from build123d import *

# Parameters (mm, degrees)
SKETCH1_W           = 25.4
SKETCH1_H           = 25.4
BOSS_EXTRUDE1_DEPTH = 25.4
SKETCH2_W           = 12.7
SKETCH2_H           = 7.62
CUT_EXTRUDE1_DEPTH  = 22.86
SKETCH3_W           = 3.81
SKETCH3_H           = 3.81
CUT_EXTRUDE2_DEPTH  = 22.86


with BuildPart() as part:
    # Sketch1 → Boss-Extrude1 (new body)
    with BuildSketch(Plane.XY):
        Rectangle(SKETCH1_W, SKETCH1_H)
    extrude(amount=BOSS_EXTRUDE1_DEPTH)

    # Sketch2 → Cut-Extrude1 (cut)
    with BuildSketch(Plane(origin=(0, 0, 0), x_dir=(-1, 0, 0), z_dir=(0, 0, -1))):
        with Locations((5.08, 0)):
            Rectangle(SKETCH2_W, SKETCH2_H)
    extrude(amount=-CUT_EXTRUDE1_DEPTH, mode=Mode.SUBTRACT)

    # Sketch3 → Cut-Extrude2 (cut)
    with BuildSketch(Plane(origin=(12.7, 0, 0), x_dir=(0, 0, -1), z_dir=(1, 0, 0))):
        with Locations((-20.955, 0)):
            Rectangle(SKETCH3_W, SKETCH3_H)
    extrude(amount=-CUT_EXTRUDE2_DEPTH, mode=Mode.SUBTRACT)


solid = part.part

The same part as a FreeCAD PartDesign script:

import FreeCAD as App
import Part
import Sketcher
Q = App.Units.Quantity

doc = App.newDocument("Part")
body = doc.addObject("PartDesign::Body", "Body")

# Sketch on XY plane
sketch1 = body.newObject("Sketcher::SketchObject", "Sketch")
sketch1.AttachmentSupport = (doc.getObject("XY_Plane"), [""])
sketch1.MapMode = "FlatFace"
sketch1.addGeometry([
    Part.LineSegment(App.Vector(-12.7, 12.7, 0), App.Vector(-12.7, -12.7, 0)),
    Part.LineSegment(App.Vector(-12.7, -12.7, 0), App.Vector(12.7, -12.7, 0)),
    Part.LineSegment(App.Vector(12.7, -12.7, 0), App.Vector(12.7, 12.7, 0)),
    Part.LineSegment(App.Vector(12.7, 12.7, 0), App.Vector(-12.7, 12.7, 0)),
], False)
sketch1.addConstraint([
    Sketcher.Constraint("Coincident", 0, 2, 1, 1),
    Sketcher.Constraint("Coincident", 1, 2, 2, 1),
    Sketcher.Constraint("Coincident", 2, 2, 3, 1),
    Sketcher.Constraint("Coincident", 3, 2, 0, 1),
    Sketcher.Constraint("Vertical", 0),
    Sketcher.Constraint("Horizontal", 1),
    Sketcher.Constraint("Vertical", 2),
    Sketcher.Constraint("Horizontal", 3),
    Sketcher.Constraint("Symmetric", 0, 2, 2, 2, -1, 1),
    Sketcher.Constraint("Equal", 3, 0),
    Sketcher.Constraint("DistanceX", 1, 1, 1, 2, Q("1 in")),
])
pad1 = body.newObject("PartDesign::Pad", "Pad")
pad1.Profile = sketch1
pad1.Length = Q("1 in")

# Sketch on XY plane
sketch2 = body.newObject("Sketcher::SketchObject", "Sketch001")
sketch2.AttachmentSupport = (doc.getObject("XY_Plane"), [""])
sketch2.MapMode = "FlatFace"
sketch2.addGeometry([
    Part.LineSegment(App.Vector(1.27, 3.81, 0), App.Vector(1.27, -3.81, 0)),
    Part.LineSegment(App.Vector(1.27, -3.81, 0), App.Vector(-11.43, -3.81, 0)),
    Part.LineSegment(App.Vector(-11.43, -3.81, 0), App.Vector(-11.43, 3.81, 0)),
    Part.LineSegment(App.Vector(-11.43, 3.81, 0), App.Vector(1.27, 3.81, 0)),
], False)
sketch2.addConstraint([
    Sketcher.Constraint("Coincident", 0, 2, 1, 1),
    Sketcher.Constraint("Coincident", 1, 2, 2, 1),
    Sketcher.Constraint("Coincident", 2, 2, 3, 1),
    Sketcher.Constraint("Coincident", 3, 2, 0, 1),
    Sketcher.Constraint("Vertical", 0),
    Sketcher.Constraint("Horizontal", 1),
    Sketcher.Constraint("Vertical", 2),
    Sketcher.Constraint("Horizontal", 3),
    Sketcher.Constraint("DistanceX", 1, 2, 1, 1, Q("0.5 in")),
    Sketcher.Constraint("DistanceY", 0, 2, 0, 1, Q("0.3 in")),
    Sketcher.Constraint("DistanceX", -1, 1, 0, 2, Q("0.05 in")),
    Sketcher.Constraint("DistanceY", 0, 2, -1, 1, Q("0.15 in")),
])
pocket1 = body.newObject("PartDesign::Pocket", "Pocket")
pocket1.Profile = sketch2
pocket1.Length = Q("0.9 in")
pocket1.Reversed = True

# Sketch on YZ plane
sketch3 = body.newObject("Sketcher::SketchObject", "Sketch002")
sketch3.AttachmentSupport = (doc.getObject("YZ_Plane"), [""])
sketch3.MapMode = "FlatFace"
sketch3.AttachmentOffset = App.Placement(App.Vector(0, 0, 0.5 * 25.4), App.Rotation())
sketch3.addGeometry([
    Part.LineSegment(App.Vector(1.905, 22.86, 0), App.Vector(-1.905, 22.86, 0)),
    Part.LineSegment(App.Vector(-1.905, 22.86, 0), App.Vector(-1.905, 19.05, 0)),
    Part.LineSegment(App.Vector(-1.905, 19.05, 0), App.Vector(1.905, 19.05, 0)),
    Part.LineSegment(App.Vector(1.905, 19.05, 0), App.Vector(1.905, 22.86, 0)),
], False)
sketch3.addConstraint([
    Sketcher.Constraint("Coincident", 0, 2, 1, 1),
    Sketcher.Constraint("Coincident", 1, 2, 2, 1),
    Sketcher.Constraint("Coincident", 2, 2, 3, 1),
    Sketcher.Constraint("Coincident", 3, 2, 0, 1),
    Sketcher.Constraint("Horizontal", 0),
    Sketcher.Constraint("Vertical", 1),
    Sketcher.Constraint("Horizontal", 2),
    Sketcher.Constraint("Vertical", 3),
    Sketcher.Constraint("Equal", 2, 1),
    Sketcher.Constraint("DistanceX", 0, 2, 0, 1, Q("0.15 in")),
    Sketcher.Constraint("DistanceY", -1, 1, 0, 2, Q("0.9 in")),
    Sketcher.Constraint("DistanceX", 0, 2, -1, 1, Q("0.075 in")),
])
pocket2 = body.newObject("PartDesign::Pocket", "Pocket001")
pocket2.Profile = sketch3
pocket2.Length = Q("0.9 in")

doc.recompute()
